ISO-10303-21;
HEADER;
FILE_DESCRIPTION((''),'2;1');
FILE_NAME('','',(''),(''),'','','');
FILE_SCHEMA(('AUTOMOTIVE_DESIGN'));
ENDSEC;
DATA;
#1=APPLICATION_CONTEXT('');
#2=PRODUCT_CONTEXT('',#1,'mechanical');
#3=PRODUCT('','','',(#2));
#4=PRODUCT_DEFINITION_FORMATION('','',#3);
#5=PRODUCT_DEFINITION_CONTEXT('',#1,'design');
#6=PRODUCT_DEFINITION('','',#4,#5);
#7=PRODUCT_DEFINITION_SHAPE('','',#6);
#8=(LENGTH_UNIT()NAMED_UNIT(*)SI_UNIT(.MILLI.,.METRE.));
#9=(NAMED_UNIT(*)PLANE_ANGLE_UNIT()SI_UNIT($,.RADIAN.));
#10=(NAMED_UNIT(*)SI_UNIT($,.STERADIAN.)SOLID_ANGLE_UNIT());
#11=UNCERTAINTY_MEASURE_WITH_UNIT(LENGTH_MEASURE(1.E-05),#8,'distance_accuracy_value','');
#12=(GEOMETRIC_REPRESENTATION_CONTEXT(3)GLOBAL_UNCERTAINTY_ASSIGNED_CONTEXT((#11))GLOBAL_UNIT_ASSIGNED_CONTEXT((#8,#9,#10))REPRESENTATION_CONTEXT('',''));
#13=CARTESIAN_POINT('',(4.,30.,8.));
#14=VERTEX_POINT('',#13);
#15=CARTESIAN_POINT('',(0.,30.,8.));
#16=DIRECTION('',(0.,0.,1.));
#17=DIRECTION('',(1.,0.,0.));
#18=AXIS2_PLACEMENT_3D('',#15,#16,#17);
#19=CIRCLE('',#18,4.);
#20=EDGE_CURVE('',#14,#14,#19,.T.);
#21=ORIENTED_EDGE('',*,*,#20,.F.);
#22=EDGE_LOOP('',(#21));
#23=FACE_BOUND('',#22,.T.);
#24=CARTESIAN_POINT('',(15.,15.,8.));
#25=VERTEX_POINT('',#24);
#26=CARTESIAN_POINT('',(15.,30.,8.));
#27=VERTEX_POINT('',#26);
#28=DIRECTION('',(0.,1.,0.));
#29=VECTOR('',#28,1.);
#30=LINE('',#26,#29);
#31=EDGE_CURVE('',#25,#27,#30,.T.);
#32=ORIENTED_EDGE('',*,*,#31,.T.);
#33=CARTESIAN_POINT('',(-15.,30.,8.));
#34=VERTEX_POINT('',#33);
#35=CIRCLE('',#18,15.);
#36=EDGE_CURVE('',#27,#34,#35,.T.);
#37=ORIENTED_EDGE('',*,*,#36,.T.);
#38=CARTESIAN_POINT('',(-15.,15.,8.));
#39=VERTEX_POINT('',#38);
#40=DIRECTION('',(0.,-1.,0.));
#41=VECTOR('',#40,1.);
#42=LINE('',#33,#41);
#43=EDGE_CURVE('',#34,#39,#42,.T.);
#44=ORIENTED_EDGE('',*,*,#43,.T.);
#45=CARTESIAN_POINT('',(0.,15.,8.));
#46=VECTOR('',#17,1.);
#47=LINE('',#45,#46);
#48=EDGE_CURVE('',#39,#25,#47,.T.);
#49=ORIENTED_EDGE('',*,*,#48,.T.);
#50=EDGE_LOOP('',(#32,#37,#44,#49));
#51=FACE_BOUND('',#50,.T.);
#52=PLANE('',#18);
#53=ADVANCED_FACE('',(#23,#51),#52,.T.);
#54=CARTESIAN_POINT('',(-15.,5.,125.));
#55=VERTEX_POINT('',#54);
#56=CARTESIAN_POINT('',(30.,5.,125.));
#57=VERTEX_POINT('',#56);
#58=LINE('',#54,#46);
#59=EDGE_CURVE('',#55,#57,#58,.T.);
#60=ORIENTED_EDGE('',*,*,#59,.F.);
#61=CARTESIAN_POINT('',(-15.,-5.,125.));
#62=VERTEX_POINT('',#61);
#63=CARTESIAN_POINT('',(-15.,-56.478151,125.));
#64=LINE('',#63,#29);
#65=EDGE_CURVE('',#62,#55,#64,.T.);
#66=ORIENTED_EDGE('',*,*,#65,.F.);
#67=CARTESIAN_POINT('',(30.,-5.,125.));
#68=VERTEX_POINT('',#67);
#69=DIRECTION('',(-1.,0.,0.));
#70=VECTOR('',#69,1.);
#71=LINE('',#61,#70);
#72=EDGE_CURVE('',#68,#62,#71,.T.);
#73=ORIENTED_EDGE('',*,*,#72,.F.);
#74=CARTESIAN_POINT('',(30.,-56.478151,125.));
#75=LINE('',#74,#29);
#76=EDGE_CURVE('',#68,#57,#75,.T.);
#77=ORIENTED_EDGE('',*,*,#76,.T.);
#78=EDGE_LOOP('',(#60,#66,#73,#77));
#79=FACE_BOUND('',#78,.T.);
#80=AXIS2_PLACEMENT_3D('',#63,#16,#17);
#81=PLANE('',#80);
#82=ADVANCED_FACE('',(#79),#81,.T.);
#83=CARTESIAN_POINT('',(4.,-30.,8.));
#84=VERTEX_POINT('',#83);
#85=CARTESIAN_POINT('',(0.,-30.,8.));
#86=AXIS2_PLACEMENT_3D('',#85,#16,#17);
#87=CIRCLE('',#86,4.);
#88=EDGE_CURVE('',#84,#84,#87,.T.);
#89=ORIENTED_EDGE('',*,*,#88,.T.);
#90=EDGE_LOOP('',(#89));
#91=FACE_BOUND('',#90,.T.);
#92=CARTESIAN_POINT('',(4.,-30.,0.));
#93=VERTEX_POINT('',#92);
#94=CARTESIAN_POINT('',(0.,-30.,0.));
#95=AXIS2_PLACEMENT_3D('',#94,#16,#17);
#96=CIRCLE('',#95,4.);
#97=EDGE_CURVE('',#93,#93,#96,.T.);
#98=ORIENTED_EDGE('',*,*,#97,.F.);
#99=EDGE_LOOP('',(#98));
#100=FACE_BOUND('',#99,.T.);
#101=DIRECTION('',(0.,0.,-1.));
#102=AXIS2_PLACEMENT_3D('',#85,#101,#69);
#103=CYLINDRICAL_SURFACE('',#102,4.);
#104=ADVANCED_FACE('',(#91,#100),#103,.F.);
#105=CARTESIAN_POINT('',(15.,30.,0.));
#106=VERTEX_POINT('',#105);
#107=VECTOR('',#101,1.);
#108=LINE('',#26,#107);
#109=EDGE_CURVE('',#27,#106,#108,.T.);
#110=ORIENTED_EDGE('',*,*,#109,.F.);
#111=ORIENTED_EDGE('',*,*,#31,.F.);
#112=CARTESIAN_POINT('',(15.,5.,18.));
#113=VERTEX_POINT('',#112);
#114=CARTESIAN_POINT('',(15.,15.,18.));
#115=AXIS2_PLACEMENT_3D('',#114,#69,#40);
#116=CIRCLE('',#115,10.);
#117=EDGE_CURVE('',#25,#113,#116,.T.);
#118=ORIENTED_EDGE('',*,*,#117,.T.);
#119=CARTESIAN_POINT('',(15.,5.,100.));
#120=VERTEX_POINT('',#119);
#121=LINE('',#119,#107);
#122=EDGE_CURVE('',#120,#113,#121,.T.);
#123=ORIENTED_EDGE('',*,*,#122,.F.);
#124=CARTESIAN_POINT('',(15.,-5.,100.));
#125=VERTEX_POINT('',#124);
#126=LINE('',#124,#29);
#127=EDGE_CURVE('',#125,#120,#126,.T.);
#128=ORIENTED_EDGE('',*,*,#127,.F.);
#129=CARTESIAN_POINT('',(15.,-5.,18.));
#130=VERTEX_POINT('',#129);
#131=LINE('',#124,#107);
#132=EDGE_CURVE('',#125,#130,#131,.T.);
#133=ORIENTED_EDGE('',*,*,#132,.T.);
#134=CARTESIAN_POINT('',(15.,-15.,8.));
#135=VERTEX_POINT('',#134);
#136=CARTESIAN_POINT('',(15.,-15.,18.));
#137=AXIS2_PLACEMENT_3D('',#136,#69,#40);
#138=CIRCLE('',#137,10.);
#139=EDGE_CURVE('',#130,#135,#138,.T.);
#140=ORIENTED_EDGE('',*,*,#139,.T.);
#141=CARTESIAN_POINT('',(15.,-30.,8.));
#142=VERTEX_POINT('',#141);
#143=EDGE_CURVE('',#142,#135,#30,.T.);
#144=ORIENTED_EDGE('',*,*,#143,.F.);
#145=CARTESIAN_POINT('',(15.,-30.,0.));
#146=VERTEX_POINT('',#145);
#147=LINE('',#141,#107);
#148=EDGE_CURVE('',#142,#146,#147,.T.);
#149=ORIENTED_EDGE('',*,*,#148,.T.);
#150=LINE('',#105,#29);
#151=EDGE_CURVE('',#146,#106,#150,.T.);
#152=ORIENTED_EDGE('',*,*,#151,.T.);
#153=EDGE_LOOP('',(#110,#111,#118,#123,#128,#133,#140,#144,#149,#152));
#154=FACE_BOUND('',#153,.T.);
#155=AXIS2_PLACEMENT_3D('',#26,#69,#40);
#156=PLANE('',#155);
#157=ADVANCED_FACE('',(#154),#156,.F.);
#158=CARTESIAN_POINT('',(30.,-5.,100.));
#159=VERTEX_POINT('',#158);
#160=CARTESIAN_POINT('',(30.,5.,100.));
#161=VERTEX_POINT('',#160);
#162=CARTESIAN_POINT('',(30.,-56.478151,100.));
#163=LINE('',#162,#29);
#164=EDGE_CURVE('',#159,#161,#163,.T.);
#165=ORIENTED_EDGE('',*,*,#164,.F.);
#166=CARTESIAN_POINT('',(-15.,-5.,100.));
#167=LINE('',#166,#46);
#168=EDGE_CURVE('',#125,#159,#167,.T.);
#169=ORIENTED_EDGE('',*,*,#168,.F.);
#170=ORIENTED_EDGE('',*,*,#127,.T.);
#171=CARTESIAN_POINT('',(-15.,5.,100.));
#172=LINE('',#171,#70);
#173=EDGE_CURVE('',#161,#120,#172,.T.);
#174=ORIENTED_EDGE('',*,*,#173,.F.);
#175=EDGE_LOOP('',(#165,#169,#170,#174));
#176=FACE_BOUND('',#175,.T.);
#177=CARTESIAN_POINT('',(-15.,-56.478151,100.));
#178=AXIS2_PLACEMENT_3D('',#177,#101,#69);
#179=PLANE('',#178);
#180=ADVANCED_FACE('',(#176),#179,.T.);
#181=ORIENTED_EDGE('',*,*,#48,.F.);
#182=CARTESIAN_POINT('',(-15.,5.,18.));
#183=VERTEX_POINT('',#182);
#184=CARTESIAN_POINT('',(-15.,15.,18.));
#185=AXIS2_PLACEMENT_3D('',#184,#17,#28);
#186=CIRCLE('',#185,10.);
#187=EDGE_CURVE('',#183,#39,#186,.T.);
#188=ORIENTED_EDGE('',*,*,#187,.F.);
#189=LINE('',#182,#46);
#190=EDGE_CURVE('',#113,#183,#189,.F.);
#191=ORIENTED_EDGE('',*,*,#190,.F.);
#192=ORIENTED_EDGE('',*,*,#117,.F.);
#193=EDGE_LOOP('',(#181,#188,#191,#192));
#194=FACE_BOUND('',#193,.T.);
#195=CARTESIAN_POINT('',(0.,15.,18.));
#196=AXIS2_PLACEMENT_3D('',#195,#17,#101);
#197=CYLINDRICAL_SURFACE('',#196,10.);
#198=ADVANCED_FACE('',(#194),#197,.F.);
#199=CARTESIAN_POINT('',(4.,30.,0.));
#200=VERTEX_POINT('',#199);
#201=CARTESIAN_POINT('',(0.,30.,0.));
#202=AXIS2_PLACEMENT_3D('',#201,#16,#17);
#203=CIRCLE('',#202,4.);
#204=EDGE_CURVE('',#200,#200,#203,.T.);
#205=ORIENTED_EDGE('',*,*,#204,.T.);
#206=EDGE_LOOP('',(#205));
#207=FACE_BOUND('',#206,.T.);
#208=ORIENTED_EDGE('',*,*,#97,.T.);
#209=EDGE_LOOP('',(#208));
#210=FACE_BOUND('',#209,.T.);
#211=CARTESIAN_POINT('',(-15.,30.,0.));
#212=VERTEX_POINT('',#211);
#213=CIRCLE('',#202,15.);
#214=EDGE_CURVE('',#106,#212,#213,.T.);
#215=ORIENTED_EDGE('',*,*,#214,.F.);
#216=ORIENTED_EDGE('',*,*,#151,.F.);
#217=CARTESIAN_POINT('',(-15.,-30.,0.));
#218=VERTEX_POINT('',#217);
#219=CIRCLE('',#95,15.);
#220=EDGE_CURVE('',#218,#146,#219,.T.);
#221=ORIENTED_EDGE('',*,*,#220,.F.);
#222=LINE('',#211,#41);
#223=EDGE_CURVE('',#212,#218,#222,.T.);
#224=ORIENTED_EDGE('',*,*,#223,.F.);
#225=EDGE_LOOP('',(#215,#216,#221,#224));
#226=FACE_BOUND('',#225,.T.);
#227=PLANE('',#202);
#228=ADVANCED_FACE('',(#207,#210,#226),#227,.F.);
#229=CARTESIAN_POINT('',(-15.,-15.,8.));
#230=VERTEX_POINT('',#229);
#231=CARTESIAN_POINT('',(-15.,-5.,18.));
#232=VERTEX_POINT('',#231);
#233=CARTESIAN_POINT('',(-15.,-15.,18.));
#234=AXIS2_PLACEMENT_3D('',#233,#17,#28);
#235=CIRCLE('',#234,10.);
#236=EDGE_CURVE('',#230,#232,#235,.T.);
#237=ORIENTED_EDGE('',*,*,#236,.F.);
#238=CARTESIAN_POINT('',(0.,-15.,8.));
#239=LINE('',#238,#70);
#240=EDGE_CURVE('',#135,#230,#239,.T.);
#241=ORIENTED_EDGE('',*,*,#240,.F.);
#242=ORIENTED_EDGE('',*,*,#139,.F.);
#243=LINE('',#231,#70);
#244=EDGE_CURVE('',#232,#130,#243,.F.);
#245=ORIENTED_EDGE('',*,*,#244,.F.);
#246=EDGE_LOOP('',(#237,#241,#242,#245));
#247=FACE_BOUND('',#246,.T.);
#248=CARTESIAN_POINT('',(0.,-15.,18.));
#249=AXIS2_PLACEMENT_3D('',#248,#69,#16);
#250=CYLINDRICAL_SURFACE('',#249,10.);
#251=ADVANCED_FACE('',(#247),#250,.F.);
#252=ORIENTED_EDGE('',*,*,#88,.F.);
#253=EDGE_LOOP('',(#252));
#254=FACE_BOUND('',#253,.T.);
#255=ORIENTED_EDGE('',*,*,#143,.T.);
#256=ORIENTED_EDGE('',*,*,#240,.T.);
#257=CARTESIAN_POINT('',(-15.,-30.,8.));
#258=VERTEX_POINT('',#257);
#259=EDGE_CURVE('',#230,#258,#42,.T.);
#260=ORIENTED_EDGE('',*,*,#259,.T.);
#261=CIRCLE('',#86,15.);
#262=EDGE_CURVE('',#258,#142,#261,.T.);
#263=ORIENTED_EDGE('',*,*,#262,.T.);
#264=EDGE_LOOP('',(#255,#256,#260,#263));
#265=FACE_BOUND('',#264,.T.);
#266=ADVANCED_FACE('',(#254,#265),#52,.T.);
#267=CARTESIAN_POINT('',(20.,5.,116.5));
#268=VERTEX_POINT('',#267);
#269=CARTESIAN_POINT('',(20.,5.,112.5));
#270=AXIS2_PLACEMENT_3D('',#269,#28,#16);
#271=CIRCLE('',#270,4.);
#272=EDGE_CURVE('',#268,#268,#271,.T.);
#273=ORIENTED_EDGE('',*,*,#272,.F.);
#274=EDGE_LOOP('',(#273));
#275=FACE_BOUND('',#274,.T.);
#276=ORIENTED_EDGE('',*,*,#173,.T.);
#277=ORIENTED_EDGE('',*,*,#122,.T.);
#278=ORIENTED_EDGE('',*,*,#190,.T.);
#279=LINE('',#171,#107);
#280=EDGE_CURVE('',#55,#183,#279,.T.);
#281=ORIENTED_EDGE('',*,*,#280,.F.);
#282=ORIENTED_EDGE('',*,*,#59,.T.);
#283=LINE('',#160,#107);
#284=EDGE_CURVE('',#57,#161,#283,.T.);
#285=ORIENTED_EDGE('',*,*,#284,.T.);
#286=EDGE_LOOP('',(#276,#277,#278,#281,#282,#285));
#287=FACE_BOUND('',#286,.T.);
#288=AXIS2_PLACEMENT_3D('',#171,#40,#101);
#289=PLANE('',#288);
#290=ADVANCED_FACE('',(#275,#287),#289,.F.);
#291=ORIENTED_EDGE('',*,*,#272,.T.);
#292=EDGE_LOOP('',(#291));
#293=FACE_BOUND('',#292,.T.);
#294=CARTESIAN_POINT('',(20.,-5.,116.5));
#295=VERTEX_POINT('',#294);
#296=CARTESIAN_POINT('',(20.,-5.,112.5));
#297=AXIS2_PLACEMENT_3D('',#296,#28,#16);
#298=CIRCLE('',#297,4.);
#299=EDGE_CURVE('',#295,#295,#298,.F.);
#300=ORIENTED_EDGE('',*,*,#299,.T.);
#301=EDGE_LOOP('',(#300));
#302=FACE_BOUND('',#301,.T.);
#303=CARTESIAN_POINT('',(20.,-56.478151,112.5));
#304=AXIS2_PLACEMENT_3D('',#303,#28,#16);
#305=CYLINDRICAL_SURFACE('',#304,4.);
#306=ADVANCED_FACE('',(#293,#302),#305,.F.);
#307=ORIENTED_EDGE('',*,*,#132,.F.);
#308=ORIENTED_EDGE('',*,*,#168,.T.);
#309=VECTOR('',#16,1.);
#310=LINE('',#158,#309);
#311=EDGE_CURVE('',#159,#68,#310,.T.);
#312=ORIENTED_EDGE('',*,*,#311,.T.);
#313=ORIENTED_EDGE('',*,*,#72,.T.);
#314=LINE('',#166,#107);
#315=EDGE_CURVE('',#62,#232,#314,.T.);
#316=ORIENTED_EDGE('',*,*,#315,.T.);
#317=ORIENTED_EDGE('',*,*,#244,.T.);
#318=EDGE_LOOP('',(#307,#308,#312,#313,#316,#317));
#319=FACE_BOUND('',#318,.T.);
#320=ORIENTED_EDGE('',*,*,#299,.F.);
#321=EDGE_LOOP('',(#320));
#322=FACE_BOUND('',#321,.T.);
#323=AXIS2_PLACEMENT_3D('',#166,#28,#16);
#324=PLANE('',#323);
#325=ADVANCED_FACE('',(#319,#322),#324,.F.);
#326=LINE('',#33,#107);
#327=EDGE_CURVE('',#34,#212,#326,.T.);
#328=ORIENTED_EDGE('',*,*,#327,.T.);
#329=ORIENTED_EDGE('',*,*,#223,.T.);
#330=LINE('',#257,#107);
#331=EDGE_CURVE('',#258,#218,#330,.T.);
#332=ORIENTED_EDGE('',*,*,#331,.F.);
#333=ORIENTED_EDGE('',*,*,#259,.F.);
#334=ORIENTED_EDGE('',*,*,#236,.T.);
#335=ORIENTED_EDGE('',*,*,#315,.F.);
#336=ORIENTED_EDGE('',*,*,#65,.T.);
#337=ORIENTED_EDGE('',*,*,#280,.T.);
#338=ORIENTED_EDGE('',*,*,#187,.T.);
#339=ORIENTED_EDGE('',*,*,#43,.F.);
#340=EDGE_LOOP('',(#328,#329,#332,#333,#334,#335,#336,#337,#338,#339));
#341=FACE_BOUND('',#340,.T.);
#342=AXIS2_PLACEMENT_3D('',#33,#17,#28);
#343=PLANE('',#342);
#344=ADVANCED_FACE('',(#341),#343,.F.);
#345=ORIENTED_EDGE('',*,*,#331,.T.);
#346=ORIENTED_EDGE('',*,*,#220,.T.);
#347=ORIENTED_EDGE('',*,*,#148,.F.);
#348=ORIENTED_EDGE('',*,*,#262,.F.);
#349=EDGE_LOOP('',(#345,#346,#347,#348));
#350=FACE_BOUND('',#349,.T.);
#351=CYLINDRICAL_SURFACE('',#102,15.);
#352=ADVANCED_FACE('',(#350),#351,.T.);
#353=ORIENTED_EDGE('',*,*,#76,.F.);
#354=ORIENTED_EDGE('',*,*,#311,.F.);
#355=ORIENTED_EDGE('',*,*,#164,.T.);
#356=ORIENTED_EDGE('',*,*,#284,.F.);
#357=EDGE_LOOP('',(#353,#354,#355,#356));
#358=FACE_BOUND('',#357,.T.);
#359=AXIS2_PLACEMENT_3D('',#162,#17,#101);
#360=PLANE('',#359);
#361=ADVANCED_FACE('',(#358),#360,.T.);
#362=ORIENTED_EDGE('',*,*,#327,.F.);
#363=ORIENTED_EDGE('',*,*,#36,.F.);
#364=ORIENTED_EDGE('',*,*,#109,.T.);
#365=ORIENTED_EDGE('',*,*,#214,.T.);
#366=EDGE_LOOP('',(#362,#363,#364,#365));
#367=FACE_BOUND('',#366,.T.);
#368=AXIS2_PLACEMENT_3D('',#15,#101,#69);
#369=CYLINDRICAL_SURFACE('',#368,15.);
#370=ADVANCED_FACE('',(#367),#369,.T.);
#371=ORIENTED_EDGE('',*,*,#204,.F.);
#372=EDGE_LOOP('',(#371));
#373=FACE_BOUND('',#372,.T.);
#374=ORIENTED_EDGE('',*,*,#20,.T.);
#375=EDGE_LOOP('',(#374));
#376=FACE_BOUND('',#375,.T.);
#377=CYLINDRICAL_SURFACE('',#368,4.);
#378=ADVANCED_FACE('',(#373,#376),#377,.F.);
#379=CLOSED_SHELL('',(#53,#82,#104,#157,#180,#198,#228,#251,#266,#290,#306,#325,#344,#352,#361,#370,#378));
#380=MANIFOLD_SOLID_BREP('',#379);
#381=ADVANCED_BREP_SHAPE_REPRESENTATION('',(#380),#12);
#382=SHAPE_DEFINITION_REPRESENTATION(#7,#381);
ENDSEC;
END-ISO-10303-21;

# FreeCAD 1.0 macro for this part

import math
import FreeCAD as App
import Part
import Sketcher
from FreeCAD import Vector


def edges_at(feature, points):
    """Names of the edges that pass closest to the given points."""
    edges = feature.Shape.Edges
    near = lambda p: min(range(len(edges)), key=lambda i: edges[i].distToShape(Part.Vertex(*p))[0])
    return sorted({f"Edge{near(p) + 1}" for p in points})


def add_polygon(sketch, points):
    """Adds a closed chain of lines whose ends are joined by coincident constraints."""
    first, n = sketch.GeometryCount, len(points)
    for a, b in zip(points, points[1:] + points[:1]):
        sketch.addGeometry(Part.LineSegment(App.Vector(*a, 0), App.Vector(*b, 0)), False)
    for i in range(n):
        sketch.addConstraint(Sketcher.Constraint("Coincident", first + i, 2, first + (i + 1) % n, 1))

doc = App.newDocument("Part")
body = doc.addObject("PartDesign::Body", "Body")

sketch1 = body.newObject("Sketcher::SketchObject", "Sketch")
sketch1.AttachmentSupport = (doc.getObject("XY_Plane"), [""])
sketch1.MapMode = "FlatFace"
sketch1.addGeometry([
    Part.LineSegment(Vector(15, -30, 0), Vector(15, 30, 0)),
    Part.ArcOfCircle(Part.Circle(Vector(0, 30, 0), Vector(0, 0, 1), 15), math.radians(0), math.radians(180)),
    Part.LineSegment(Vector(-15, 30, 0), Vector(-15, -30, 0)),
    Part.ArcOfCircle(Part.Circle(Vector(0, -30, 0), Vector(0, 0, 1), 15), math.radians(180), math.radians(360)),
    Part.Circle(Vector(0, -30, 0), Vector(0, 0, 1), 4),
    Part.Circle(Vector(0, 30, 0), Vector(0, 0, 1), 4),
], False)
sketch1.addConstraint([
    Sketcher.Constraint("Tangent", 0, 2, 1, 1),
    Sketcher.Constraint("Tangent", 1, 2, 2, 1),
    Sketcher.Constraint("Tangent", 2, 2, 3, 1),
    Sketcher.Constraint("Tangent", 3, 2, 0, 1),
    Sketcher.Constraint("Vertical", 0),
    Sketcher.Constraint("Vertical", 2),
    Sketcher.Constraint("Coincident", 4, 3, 3, 3),
    Sketcher.Constraint("Coincident", 5, 3, 1, 3),
    Sketcher.Constraint("Equal", 4, 5),
    Sketcher.Constraint("Symmetric", 1, 3, 3, 3, -1, 1),
    Sketcher.Constraint("Diameter", 4, 8.0),
    Sketcher.Constraint("Radius", 1, 15.0),
    Sketcher.Constraint("DistanceY", 0, 1, 0, 2, 60.0),
])
pad1 = body.newObject("PartDesign::Pad", "Pad")
pad1.Profile = sketch1
pad1.Length = 8

sketch2 = body.newObject("Sketcher::SketchObject", "Sketch001")
sketch2.AttachmentSupport = (doc.getObject("XY_Plane"), [""])
sketch2.MapMode = "FlatFace"
add_polygon(sketch2, [(-15, 5), (-15, -5), (15, -5), (15, 5)])
sketch2.addConstraint([
    Sketcher.Constraint("Vertical", 0),
    Sketcher.Constraint("Horizontal", 1),
    Sketcher.Constraint("Vertical", 2),
    Sketcher.Constraint("Horizontal", 3),
    Sketcher.Constraint("Symmetric", 0, 2, 2, 2, -1, 1),
    Sketcher.Constraint("DistanceX", 1, 1, 1, 2, 30.0),
    Sketcher.Constraint("DistanceY", 0, 2, 0, 1, 10.0),
])
pad2 = body.newObject("PartDesign::Pad", "Pad001")
pad2.Profile = sketch2
pad2.Length = 100
doc.recompute()

fillet = body.newObject("PartDesign::Fillet", "Fillet")
fillet.Base = (pad2, edges_at(pad2, [(0, 5, 8), (0, -5, 8)]))
fillet.Radius = 10

sketch3 = body.newObject("Sketcher::SketchObject", "Sketch002")
sketch3.AttachmentSupport = (doc.getObject("XZ_Plane"), [""])
sketch3.MapMode = "FlatFace"
sketch3.AttachmentOffset = App.Placement(Vector(0, 0, -5), App.Rotation())
add_polygon(sketch3, [(-15, 100), (-15, 125), (30, 125), (30, 100)])
sketch3.addGeometry(Part.Circle(Vector(20, 112.5, 0), Vector(0, 0, 1), 4), False)
sketch3.addConstraint([
    Sketcher.Constraint("Vertical", 0),
    Sketcher.Constraint("Horizontal", 1),
    Sketcher.Constraint("Vertical", 2),
    Sketcher.Constraint("Horizontal", 3),
    Sketcher.Constraint("Diameter", 4, 8.0),
    Sketcher.Constraint("DistanceX", 1, 1, 1, 2, 45.0),
    Sketcher.Constraint("DistanceY", 0, 1, 0, 2, 25.0),
    Sketcher.Constraint("DistanceX", -1, 1, 4, 3, 20.0),
    Sketcher.Constraint("DistanceX", 0, 2, -1, 1, 15.0),
    Sketcher.Constraint("DistanceY", -1, 1, 0, 2, 125.0),
    Sketcher.Constraint("DistanceY", -1, 1, 4, 3, 112.5),
])
pad3 = body.newObject("PartDesign::Pad", "Pad002")
pad3.Profile = sketch3
pad3.Length = 10

doc.recompute()
